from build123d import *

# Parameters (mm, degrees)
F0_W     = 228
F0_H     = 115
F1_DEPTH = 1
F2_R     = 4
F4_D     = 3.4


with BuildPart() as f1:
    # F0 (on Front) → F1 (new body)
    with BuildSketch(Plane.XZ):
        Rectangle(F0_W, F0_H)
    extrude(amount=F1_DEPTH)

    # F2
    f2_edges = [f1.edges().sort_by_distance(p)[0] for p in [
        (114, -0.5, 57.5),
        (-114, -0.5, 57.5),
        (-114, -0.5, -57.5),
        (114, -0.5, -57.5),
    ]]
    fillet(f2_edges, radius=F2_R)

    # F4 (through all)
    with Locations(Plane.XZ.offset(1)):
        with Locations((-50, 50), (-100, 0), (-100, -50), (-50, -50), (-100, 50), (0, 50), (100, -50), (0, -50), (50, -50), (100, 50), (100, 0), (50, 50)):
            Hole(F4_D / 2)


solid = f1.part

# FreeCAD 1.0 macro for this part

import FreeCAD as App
import Part
import Sketcher


def edges_at(feature, points):
    """Names of the edges that pass closest to the given points."""
    edges = feature.Shape.Edges
    near = lambda p: min(range(len(edges)), key=lambda i: edges[i].distToShape(Part.Vertex(*p))[0])
    return sorted({f"Edge{near(p) + 1}" for p in points})


def add_polygon(sketch, points):
    """Adds a closed chain of lines whose ends are joined by coincident constraints."""
    first, n = sketch.GeometryCount, len(points)
    for a, b in zip(points, points[1:] + points[:1]):
        sketch.addGeometry(Part.LineSegment(App.Vector(*a, 0), App.Vector(*b, 0)), False)
    for i in range(n):
        sketch.addConstraint(Sketcher.Constraint("Coincident", first + i, 2, first + (i + 1) % n, 1))

doc = App.newDocument("Part")
body = doc.addObject("PartDesign::Body", "Body")

sketch1 = doc.addObject("Sketcher::SketchObject", "Sketch")
body.addObject(sketch1)
sketch1.AttachmentSupport = (doc.XZ_Plane, [""])
sketch1.MapMode = "FlatFace"
add_polygon(sketch1, [(-114, 58), (-114, -58), (114, -58), (114, 58)])
sketch1.addConstraint(Sketcher.Constraint("Vertical", 0))
sketch1.addConstraint(Sketcher.Constraint("Horizontal", 1))
sketch1.addConstraint(Sketcher.Constraint("Vertical", 2))
sketch1.addConstraint(Sketcher.Constraint("Horizontal", 3))
sketch1.addConstraint(Sketcher.Constraint("Symmetric", 0, 2, 2, 2, -1, 1))
sketch1.addConstraint(Sketcher.Constraint("DistanceX", 1, 1, 1, 2, 228.0))
sketch1.addConstraint(Sketcher.Constraint("DistanceY", 0, 2, 0, 1, 115.0))
pad1 = doc.addObject("PartDesign::Pad", "Pad")
body.addObject(pad1)
pad1.Profile = sketch1
pad1.Length = 1
doc.recompute()

fillet = doc.addObject("PartDesign::Fillet", "Fillet")
body.addObject(fillet)
fillet.Base = (pad1, edges_at(pad1, [
    (114, -0.5, 57.5),
    (-114, -0.5, 57.5),
    (-114, -0.5, -57.5),
    (114, -0.5, -57.5),
]))
fillet.Radius = 4

sketch2 = doc.addObject("Sketcher::SketchObject", "Sketch001")
body.addObject(sketch2)
sketch2.AttachmentSupport = (doc.XZ_Plane, [""])
sketch2.MapMode = "FlatFace"
sketch2.AttachmentOffset = App.Placement(App.Vector(0, 0, 1), App.Rotation())
sketch2.addGeometry(Part.Circle(App.Vector(-50, 50, 0), App.Vector(0, 0, 1), 1.7), False)
sketch2.addGeometry(Part.Circle(App.Vector(-100, 0, 0), App.Vector(0, 0, 1), 1.7), False)
sketch2.addGeometry(Part.Circle(App.Vector(-100, -50, 0), App.Vector(0, 0, 1), 1.7), False)
sketch2.addGeometry(Part.Circle(App.Vector(-50, -50, 0), App.Vector(0, 0, 1), 1.7), False)
sketch2.addGeometry(Part.Circle(App.Vector(-100, 50, 0), App.Vector(0, 0, 1), 1.7), False)
sketch2.addGeometry(Part.Circle(App.Vector(0, 50, 0), App.Vector(0, 0, 1), 1.7), False)
sketch2.addGeometry(Part.Circle(App.Vector(100, -50, 0), App.Vector(0, 0, 1), 1.7), False)
sketch2.addGeometry(Part.Circle(App.Vector(0, -50, 0), App.Vector(0, 0, 1), 1.7), False)
sketch2.addGeometry(Part.Circle(App.Vector(50, -50, 0), App.Vector(0, 0, 1), 1.7), False)
sketch2.addGeometry(Part.Circle(App.Vector(100, 50, 0), App.Vector(0, 0, 1), 1.7), False)
sketch2.addGeometry(Part.Circle(App.Vector(100, 0, 0), App.Vector(0, 0, 1), 1.7), False)
sketch2.addGeometry(Part.Circle(App.Vector(50, 50, 0), App.Vector(0, 0, 1), 1.7), False)
sketch2.addConstraint(Sketcher.Constraint("Equal", 0, 1))
sketch2.addConstraint(Sketcher.Constraint("Equal", 1, 2))
sketch2.addConstraint(Sketcher.Constraint("Equal", 2, 3))
sketch2.addConstraint(Sketcher.Constraint("Equal", 3, 4))
sketch2.addConstraint(Sketcher.Constraint("Equal", 4, 5))
sketch2.addConstraint(Sketcher.Constraint("Equal", 5, 6))
sketch2.addConstraint(Sketcher.Constraint("Equal", 6, 7))
sketch2.addConstraint(Sketcher.Constraint("Equal", 7, 8))
sketch2.addConstraint(Sketcher.Constraint("Equal", 8, 9))
sketch2.addConstraint(Sketcher.Constraint("Equal", 9, 10))
sketch2.addConstraint(Sketcher.Constraint("Equal", 10, 11))
sketch2.addConstraint(Sketcher.Constraint("Symmetric", 4, 3, 6, 3, -1, 1))
sketch2.addConstraint(Sketcher.Constraint("Symmetric", 5, 3, 7, 3, -1, 1))
sketch2.addConstraint(Sketcher.Constraint("Symmetric", 0, 3, 8, 3, -1, 1))
sketch2.addConstraint(Sketcher.Constraint("Symmetric", 2, 3, 9, 3, -1, 1))
sketch2.addConstraint(Sketcher.Constraint("Symmetric", 1, 3, 10, 3, -1, 1))
sketch2.addConstraint(Sketcher.Constraint("Symmetric", 3, 3, 11, 3, -1, 1))
sketch2.addConstraint(Sketcher.Constraint("Symmetric", 2, 3, 6, 3, -2))
sketch2.addConstraint(Sketcher.Constraint("Symmetric", 3, 3, 8, 3, -2))
sketch2.addConstraint(Sketcher.Constraint("PointOnObject", 1, 3, -1))
sketch2.addConstraint(Sketcher.Constraint("PointOnObject", 5, 3, -2))
sketch2.addConstraint(Sketcher.Constraint("Horizontal", 2, 3, 3, 3))
sketch2.addConstraint(Sketcher.Constraint("Horizontal", 4, 3, 5, 3))
sketch2.addConstraint(Sketcher.Constraint("Vertical", 1, 3, 2, 3))
sketch2.addConstraint(Sketcher.Constraint("Diameter", 0, 3.4))
sketch2.addConstraint(Sketcher.Constraint("DistanceX", 0, 3, -1, 1, 50.0))
sketch2.addConstraint(Sketcher.Constraint("DistanceY", -1, 1, 0, 3, 50.0))
sketch2.addConstraint(Sketcher.Constraint("DistanceX", 1, 3, -1, 1, 100.0))
doc.recompute()
hole = doc.addObject("PartDesign::Hole", "Hole")
body.addObject(hole)
hole.Profile = sketch2
hole.ThreadType = "None"
hole.Diameter = 3.4
hole.DepthType = "ThroughAll"

doc.recompute()
